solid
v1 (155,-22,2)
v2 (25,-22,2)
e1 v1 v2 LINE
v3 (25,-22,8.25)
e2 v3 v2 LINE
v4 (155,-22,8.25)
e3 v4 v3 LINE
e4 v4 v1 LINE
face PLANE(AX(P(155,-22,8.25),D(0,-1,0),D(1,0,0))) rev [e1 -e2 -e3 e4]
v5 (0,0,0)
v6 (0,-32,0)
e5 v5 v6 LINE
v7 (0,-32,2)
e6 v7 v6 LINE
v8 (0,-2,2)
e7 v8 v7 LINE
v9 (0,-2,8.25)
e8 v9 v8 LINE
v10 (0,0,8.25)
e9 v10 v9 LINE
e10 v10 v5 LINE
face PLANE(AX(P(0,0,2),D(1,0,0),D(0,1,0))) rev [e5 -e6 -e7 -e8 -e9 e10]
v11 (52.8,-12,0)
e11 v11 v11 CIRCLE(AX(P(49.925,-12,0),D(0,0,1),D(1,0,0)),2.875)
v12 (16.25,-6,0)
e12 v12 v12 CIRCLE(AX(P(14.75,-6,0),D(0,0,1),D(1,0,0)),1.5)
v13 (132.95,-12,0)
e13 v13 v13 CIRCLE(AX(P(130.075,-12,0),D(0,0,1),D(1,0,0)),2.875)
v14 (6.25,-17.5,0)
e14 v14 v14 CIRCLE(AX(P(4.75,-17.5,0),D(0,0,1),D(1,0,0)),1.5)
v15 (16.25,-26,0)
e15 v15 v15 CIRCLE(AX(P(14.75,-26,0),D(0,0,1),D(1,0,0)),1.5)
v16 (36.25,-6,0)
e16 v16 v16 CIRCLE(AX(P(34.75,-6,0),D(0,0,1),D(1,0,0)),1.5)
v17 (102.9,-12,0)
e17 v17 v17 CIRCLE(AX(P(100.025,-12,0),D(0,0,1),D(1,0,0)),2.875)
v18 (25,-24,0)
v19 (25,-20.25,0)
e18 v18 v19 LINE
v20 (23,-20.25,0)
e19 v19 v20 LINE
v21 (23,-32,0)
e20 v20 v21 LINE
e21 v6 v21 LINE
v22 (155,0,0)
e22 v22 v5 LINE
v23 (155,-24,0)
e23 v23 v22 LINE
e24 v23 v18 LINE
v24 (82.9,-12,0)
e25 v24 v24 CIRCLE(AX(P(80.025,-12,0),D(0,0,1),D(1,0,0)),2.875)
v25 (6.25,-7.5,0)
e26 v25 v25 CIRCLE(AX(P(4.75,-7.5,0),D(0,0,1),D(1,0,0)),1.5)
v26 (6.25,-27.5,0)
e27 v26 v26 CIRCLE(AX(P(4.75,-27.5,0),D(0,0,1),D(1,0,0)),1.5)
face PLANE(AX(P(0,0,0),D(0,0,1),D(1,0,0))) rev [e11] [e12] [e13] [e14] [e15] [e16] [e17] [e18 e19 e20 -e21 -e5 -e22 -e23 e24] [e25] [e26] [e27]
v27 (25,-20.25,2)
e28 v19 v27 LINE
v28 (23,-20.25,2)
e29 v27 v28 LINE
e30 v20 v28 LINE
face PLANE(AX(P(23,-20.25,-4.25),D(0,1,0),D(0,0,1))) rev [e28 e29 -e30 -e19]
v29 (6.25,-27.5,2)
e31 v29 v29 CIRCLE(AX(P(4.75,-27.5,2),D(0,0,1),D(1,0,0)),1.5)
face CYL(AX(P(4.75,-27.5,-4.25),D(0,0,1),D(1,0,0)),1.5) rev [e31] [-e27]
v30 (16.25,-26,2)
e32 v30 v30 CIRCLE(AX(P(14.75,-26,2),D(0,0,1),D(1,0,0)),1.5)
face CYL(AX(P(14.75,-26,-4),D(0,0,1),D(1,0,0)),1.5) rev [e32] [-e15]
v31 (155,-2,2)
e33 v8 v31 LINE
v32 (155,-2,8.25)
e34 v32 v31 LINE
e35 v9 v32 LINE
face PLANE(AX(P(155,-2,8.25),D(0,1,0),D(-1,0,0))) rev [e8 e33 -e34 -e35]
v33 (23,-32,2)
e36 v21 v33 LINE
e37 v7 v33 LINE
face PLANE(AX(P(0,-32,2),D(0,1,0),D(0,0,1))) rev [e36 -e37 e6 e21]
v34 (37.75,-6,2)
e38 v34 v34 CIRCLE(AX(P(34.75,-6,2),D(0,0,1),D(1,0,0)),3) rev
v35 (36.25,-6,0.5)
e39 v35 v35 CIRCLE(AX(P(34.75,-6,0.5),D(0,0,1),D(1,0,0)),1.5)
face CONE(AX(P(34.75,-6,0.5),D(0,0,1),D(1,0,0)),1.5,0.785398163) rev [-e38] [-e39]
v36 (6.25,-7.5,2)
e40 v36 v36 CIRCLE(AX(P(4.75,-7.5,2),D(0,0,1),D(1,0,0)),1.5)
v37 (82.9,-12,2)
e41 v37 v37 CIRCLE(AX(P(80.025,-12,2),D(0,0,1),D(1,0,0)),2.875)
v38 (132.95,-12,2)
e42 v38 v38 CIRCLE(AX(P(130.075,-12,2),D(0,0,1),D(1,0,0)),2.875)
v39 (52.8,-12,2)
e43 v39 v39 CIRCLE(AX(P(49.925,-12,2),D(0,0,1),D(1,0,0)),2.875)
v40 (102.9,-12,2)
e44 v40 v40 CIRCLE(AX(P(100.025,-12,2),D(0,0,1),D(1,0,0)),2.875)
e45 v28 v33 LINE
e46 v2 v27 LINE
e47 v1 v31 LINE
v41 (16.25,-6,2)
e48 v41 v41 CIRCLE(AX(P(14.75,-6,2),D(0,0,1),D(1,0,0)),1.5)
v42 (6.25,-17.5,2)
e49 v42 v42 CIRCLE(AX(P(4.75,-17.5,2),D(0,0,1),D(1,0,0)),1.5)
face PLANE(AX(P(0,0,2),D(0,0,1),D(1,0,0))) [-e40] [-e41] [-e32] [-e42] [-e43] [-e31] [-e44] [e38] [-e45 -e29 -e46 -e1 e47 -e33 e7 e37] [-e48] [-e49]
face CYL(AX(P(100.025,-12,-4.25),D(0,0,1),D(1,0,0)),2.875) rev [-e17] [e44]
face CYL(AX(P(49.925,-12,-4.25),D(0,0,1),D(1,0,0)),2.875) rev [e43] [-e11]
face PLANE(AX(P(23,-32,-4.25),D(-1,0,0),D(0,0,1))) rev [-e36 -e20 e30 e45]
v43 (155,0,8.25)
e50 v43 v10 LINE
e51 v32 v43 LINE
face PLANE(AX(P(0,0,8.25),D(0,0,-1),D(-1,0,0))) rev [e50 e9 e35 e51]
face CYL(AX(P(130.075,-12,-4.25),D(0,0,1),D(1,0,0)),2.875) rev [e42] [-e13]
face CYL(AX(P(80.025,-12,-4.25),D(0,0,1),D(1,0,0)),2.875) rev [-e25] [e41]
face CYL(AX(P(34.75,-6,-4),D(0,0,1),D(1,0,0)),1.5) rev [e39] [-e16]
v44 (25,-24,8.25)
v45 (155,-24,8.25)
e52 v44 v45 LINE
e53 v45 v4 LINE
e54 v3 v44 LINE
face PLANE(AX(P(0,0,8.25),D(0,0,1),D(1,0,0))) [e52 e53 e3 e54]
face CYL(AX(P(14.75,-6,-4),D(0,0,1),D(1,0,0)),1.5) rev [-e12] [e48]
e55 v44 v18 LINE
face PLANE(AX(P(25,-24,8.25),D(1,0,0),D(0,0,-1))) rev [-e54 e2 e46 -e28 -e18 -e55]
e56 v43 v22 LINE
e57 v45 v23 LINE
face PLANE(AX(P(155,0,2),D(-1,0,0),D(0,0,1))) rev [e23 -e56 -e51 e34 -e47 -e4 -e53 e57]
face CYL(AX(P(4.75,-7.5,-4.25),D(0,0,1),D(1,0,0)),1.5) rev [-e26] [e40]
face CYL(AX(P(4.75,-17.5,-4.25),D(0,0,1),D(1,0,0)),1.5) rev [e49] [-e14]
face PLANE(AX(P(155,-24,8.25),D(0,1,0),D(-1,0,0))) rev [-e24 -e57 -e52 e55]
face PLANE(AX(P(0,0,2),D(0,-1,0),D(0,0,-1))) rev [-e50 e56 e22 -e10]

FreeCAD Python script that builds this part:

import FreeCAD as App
import Part
import Sketcher
Q = App.Units.Quantity


def edges_at(feature, points):
    """Names of the edges that pass closest to the given points."""
    edges = feature.Shape.Edges
    near = lambda p: min(range(len(edges)), key=lambda i: edges[i].distToShape(Part.Vertex(*p))[0])
    return sorted({f"Edge{near(p) + 1}" for p in points})


def add_polygon(sketch, points):
    """Adds a closed chain of lines whose ends are joined by coincident constraints."""
    first, n = sketch.GeometryCount, len(points)
    for a, b in zip(points, points[1:] + points[:1]):
        sketch.addGeometry(Part.LineSegment(App.Vector(*a, 0), App.Vector(*b, 0)), False)
    for i in range(n):
        sketch.addConstraint(Sketcher.Constraint("Coincident", first + i, 2, first + (i + 1) % n, 1))

doc = App.newDocument("Part")
body = doc.addObject("PartDesign::Body", "Body")

sketch1 = doc.addObject("Sketcher::SketchObject", "Sketch")
body.addObject(sketch1)
sketch1.AttachmentSupport = (doc.XY_Plane, [""])
sketch1.MapMode = "FlatFace"
add_polygon(sketch1, [(0, 0), (0, -32), (155, -32), (155, 0)])
sketch1.addConstraint([
    Sketcher.Constraint("Vertical", 0),
    Sketcher.Constraint("Horizontal", 1),
    Sketcher.Constraint("Vertical", 2),
    Sketcher.Constraint("Horizontal", 3),
    Sketcher.Constraint("Coincident", 3, 2, -1, 1),
    Sketcher.Constraint("DistanceX", 1, 1, 1, 2, Q("155 mm")),
    Sketcher.Constraint("DistanceY", 0, 2, 0, 1, Q("32 mm")),
])
pad1 = doc.addObject("PartDesign::Pad", "Pad")
body.addObject(pad1)
pad1.Profile = sketch1
pad1.Length = 2

sketch2 = doc.addObject("Sketcher::SketchObject", "Sketch001")
body.addObject(sketch2)
sketch2.AttachmentSupport = (doc.XY_Plane, [""])
sketch2.MapMode = "FlatFace"
sketch2.AttachmentOffset = App.Placement(App.Vector(0, 0, 2), App.Rotation())
add_polygon(sketch2, [(0, 0), (0, -2), (155, -2), (155, 0)])
add_polygon(sketch2, [(25, -22), (25, -24), (155, -24), (155, -22)])
sketch2.addConstraint([
    Sketcher.Constraint("Vertical", 0),
    Sketcher.Constraint("Horizontal", 1),
    Sketcher.Constraint("Vertical", 2),
    Sketcher.Constraint("Horizontal", 3),
    Sketcher.Constraint("Vertical", 4),
    Sketcher.Constraint("Horizontal", 5),
    Sketcher.Constraint("Vertical", 6),
    Sketcher.Constraint("Horizontal", 7),
    Sketcher.Constraint("Coincident", 3, 2, -1, 1),
    Sketcher.Constraint("Vertical", 2, 2, 5, 2),
    Sketcher.Constraint("Equal", 2, 4),
    Sketcher.Constraint("DistanceX", 1, 1, 1, 2, Q("155 mm")),
    Sketcher.Constraint("DistanceX", 5, 1, 5, 2, Q("130 mm")),
    Sketcher.Constraint("DistanceY", 0, 2, 0, 1, Q("2 mm")),
    Sketcher.Constraint("DistanceY", 4, 2, -1, 1, Q("24 mm")),
])
pad2 = doc.addObject("PartDesign::Pad", "Pad001")
body.addObject(pad2)
pad2.Profile = sketch2
pad2.Length = 6.25

sketch3 = doc.addObject("Sketcher::SketchObject", "Sketch002")
body.addObject(sketch3)
sketch3.AttachmentSupport = (doc.XY_Plane, [""])
sketch3.MapMode = "FlatFace"
sketch3.AttachmentOffset = App.Placement(App.Vector(0, 0, 2), App.Rotation())
add_polygon(sketch3, [(23, -32), (155, -32), (155, -24), (25, -24), (25, -20.2), (23, -20.2)])
sketch3.addConstraint([
    Sketcher.Constraint("Horizontal", 0),
    Sketcher.Constraint("Vertical", 1),
    Sketcher.Constraint("Horizontal", 2),
    Sketcher.Constraint("Vertical", 3),
    Sketcher.Constraint("Horizontal", 4),
    Sketcher.Constraint("Vertical", 5),
    Sketcher.Constraint("DistanceX", 0, 1, 0, 2, Q("132 mm")),
    Sketcher.Constraint("DistanceX", 2, 2, 2, 1, Q("130 mm")),
    Sketcher.Constraint("DistanceY", 1, 1, 1, 2, Q("8 mm")),
    Sketcher.Constraint("DistanceX", -1, 1, 0, 2, Q("155 mm")),
    Sketcher.Constraint("DistanceY", 0, 2, -1, 1, Q("32 mm")),
    Sketcher.Constraint("DistanceY", 3, 1, 3, 2, Q("3.75 mm")),
])
pocket1 = doc.addObject("PartDesign::Pocket", "Pocket")
body.addObject(pocket1)
pocket1.Profile = sketch3
pocket1.Length = 6.25

sketch4 = doc.addObject("Sketcher::SketchObject", "Sketch003")
body.addObject(sketch4)
sketch4.AttachmentSupport = (doc.XY_Plane, [""])
sketch4.MapMode = "FlatFace"
sketch4.AttachmentOffset = App.Placement(App.Vector(0, 0, 2), App.Rotation())
sketch4.addGeometry([
    Part.Circle(App.Vector(4.8, -27.5, 0), App.Vector(0, 0, 1), 1.5),
    Part.Circle(App.Vector(4.8, -17.5, 0), App.Vector(0, 0, 1), 1.5),
    Part.Circle(App.Vector(4.8, -7.5, 0), App.Vector(0, 0, 1), 1.5),
], False)
sketch4.addConstraint([
    Sketcher.Constraint("Equal", 0, 1),
    Sketcher.Constraint("Equal", 1, 2),
    Sketcher.Constraint("Vertical", 0, 3, 1, 3),
    Sketcher.Constraint("Vertical", 1, 3, 2, 3),
    Sketcher.Constraint("Diameter", 0, Q("3 mm")),
    Sketcher.Constraint("DistanceY", 0, 3, 1, 3, Q("10 mm")),
    Sketcher.Constraint("DistanceY", 1, 3, 2, 3, Q("10 mm")),
    Sketcher.Constraint("DistanceY", 0, 3, -1, 1, Q("27.5 mm")),
    Sketcher.Constraint("DistanceX", -1, 1, 0, 3, Q("4.75 mm")),
])
pocket2 = doc.addObject("PartDesign::Pocket", "Pocket001")
body.addObject(pocket2)
pocket2.Profile = sketch4
pocket2.Length = 6.25

sketch5 = doc.addObject("Sketcher::SketchObject", "Sketch004")
body.addObject(sketch5)
sketch5.AttachmentSupport = (doc.XY_Plane, [""])
sketch5.MapMode = "FlatFace"
sketch5.AttachmentOffset = App.Placement(App.Vector(0, 0, 2), App.Rotation())
sketch5.addGeometry([
    Part.Circle(App.Vector(130.1, -12, 0), App.Vector(0, 0, 1), 2.9),
    Part.Circle(App.Vector(100, -12, 0), App.Vector(0, 0, 1), 2.9),
    Part.Circle(App.Vector(80, -12, 0), App.Vector(0, 0, 1), 2.9),
    Part.Circle(App.Vector(49.9, -12, 0), App.Vector(0, 0, 1), 2.9),
], False)
sketch5.addConstraint([
    Sketcher.Constraint("Equal", 0, 1),
    Sketcher.Constraint("Equal", 1, 2),
    Sketcher.Constraint("Equal", 2, 3),
    Sketcher.Constraint("Horizontal", 0, 3, 1, 3),
    Sketcher.Constraint("Horizontal", 1, 3, 2, 3),
    Sketcher.Constraint("Horizontal", 2, 3, 3, 3),
    Sketcher.Constraint("Diameter", 0, Q("5.75 mm")),
    Sketcher.Constraint("DistanceY", 0, 3, -1, 1, Q("12 mm")),
    Sketcher.Constraint("DistanceX", 2, 3, 1, 3, Q("20 mm")),
    Sketcher.Constraint("DistanceX", 3, 3, 2, 3, Q("30.1 mm")),
    Sketcher.Constraint("DistanceX", 1, 3, 0, 3, Q("30.05 mm")),
    Sketcher.Constraint("DistanceX", -1, 1, 0, 3, Q("130.075 mm")),
])
pocket3 = doc.addObject("PartDesign::Pocket", "Pocket002")
body.addObject(pocket3)
pocket3.Profile = sketch5
pocket3.Length = 6.25

sketch6 = doc.addObject("Sketcher::SketchObject", "Sketch005")
body.addObject(sketch6)
sketch6.AttachmentSupport = (doc.XY_Plane, [""])
sketch6.MapMode = "FlatFace"
sketch6.AttachmentOffset = App.Placement(App.Vector(0, 0, 2), App.Rotation())
sketch6.addGeometry([
    Part.Circle(App.Vector(14.8, -26, 0), App.Vector(0, 0, 1), 1.5),
    Part.Circle(App.Vector(14.8, -6, 0), App.Vector(0, 0, 1), 1.5),
    Part.Circle(App.Vector(34.8, -6, 0), App.Vector(0, 0, 1), 1.5),
], False)
sketch6.addConstraint([
    Sketcher.Constraint("Equal", 0, 1),
    Sketcher.Constraint("Equal", 1, 2),
    Sketcher.Constraint("Horizontal", 1, 3, 2, 3),
    Sketcher.Constraint("Vertical", 0, 3, 1, 3),
    Sketcher.Constraint("Diameter", 0, Q("3 mm")),
    Sketcher.Constraint("DistanceY", 0, 3, -1, 1, Q("26 mm")),
    Sketcher.Constraint("DistanceY", 1, 3, -1, 1, Q("6 mm")),
    Sketcher.Constraint("DistanceX", 1, 3, 2, 3, Q("20 mm")),
    Sketcher.Constraint("DistanceX", -1, 1, 0, 3, Q("14.75 mm")),
])
pocket4 = doc.addObject("PartDesign::Pocket", "Pocket003")
body.addObject(pocket4)
pocket4.Profile = sketch6
pocket4.Length = 6
doc.recompute()

chamfer = doc.addObject("PartDesign::Chamfer", "Chamfer")
body.addObject(chamfer)
chamfer.Base = (pocket4, edges_at(pocket4, [(33.25, -6, 2)]))
chamfer.Size = 1.5

doc.recompute()
